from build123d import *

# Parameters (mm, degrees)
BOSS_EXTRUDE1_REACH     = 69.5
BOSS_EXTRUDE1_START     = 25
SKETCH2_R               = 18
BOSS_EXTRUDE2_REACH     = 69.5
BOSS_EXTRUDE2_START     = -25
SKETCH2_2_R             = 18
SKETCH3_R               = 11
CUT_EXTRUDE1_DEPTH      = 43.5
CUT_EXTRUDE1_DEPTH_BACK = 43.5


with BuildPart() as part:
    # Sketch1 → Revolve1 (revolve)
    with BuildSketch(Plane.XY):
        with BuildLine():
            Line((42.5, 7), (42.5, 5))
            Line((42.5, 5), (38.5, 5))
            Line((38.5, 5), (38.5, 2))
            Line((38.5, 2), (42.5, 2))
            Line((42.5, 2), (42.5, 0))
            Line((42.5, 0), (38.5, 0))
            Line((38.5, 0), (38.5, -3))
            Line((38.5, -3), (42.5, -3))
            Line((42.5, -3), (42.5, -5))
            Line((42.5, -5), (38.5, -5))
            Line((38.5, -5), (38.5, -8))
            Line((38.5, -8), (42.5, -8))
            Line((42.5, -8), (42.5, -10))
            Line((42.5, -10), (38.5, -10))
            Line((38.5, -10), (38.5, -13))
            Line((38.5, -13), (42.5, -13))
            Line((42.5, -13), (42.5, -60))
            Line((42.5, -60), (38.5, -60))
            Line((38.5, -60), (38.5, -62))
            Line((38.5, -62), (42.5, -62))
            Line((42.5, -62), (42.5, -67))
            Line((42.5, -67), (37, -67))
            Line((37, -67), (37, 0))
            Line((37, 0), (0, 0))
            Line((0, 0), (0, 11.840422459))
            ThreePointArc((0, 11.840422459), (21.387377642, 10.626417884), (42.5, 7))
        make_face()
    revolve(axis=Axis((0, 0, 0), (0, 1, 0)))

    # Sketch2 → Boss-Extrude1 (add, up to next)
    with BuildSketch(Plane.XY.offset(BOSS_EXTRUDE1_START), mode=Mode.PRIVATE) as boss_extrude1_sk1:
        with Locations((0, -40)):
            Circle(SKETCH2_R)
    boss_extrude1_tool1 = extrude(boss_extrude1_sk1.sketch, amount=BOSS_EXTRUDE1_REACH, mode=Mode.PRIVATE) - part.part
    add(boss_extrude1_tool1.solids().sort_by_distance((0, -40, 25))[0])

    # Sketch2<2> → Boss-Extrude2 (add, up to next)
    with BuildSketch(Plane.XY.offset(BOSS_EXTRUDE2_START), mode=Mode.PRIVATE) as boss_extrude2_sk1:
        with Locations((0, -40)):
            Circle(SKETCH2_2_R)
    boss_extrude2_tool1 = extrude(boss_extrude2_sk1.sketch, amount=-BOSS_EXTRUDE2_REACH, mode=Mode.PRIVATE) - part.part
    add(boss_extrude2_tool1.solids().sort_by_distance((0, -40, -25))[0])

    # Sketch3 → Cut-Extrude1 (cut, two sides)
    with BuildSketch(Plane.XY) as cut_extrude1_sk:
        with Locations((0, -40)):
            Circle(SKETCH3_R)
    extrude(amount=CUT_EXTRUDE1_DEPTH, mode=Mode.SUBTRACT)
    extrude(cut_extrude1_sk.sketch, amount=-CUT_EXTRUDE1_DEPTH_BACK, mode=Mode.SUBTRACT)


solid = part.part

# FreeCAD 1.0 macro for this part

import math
import FreeCAD as App
import Part
import Sketcher
from FreeCAD import Vector
Q = App.Units.Quantity

doc = App.newDocument("Part")
params = doc.addObject("Spreadsheet::Sheet", "Params")
for row, (alias, value) in enumerate([
    ("sketch1_radius", "189 mm"),
    ("sketch1_width", "37 mm"),
    ("sketch1_width2", "4 mm"),
    ("sketch1_height", "2 mm"),
    ("sketch1_height2", "67 mm"),
    ("revolution_angle", "360 deg"),
    ("sketch2_diameter", "36 mm"),
    ("sketch3_diameter", "36 mm"),
    ("sketch4_diameter", "22 mm"),
], start=1):
    params.set(f"A{row}", alias)
    params.set(f"B{row}", "=" + value)
    params.setAlias(f"B{row}", alias)

body = doc.addObject("PartDesign::Body", "Body")

# Sketch on XY plane
sketch1 = body.newObject("Sketcher::SketchObject", "Sketch")
sketch1.AttachmentSupport = (doc.getObject("XY_Plane"), [""])
sketch1.MapMode = "FlatFace"
sketch1.addGeometry([
    Part.LineSegment(Vector(42.5, 5, 0), Vector(42.5, 7, 0)),  # 0
    Part.ArcOfCircle(Part.Circle(Vector(0, -177.2, 0), Vector(0, 0, 1), 189), math.radians(77), math.radians(90)),  # 1
    Part.LineSegment(Vector(0, 11.8, 0), Vector(0, 0, 0)),  # 2
    Part.LineSegment(Vector(0, 0, 0), Vector(37, 0, 0)),  # 3
    Part.LineSegment(Vector(37, 0, 0), Vector(37, -67, 0)),  # 4
    Part.LineSegment(Vector(37, -67, 0), Vector(42.5, -67, 0)),  # 5
    Part.LineSegment(Vector(42.5, -67, 0), Vector(42.5, -62, 0)),  # 6
    Part.LineSegment(Vector(42.5, -62, 0), Vector(38.5, -62, 0)),  # 7
    Part.LineSegment(Vector(38.5, -62, 0), Vector(38.5, -60, 0)),  # 8
    Part.LineSegment(Vector(38.5, -60, 0), Vector(42.5, -60, 0)),  # 9
    Part.LineSegment(Vector(42.5, -60, 0), Vector(42.5, -13, 0)),  # 10
    Part.LineSegment(Vector(42.5, -13, 0), Vector(38.5, -13, 0)),  # 11
    Part.LineSegment(Vector(38.5, -13, 0), Vector(38.5, -10, 0)),  # 12
    Part.LineSegment(Vector(38.5, -10, 0), Vector(42.5, -10, 0)),  # 13
    Part.LineSegment(Vector(42.5, -10, 0), Vector(42.5, -8, 0)),  # 14
    Part.LineSegment(Vector(42.5, -8, 0), Vector(38.5, -8, 0)),  # 15
    Part.LineSegment(Vector(38.5, -8, 0), Vector(38.5, -5, 0)),  # 16
    Part.LineSegment(Vector(38.5, -5, 0), Vector(42.5, -5, 0)),  # 17
    Part.LineSegment(Vector(42.5, -5, 0), Vector(42.5, -3, 0)),  # 18
    Part.LineSegment(Vector(42.5, -3, 0), Vector(38.5, -3, 0)),  # 19
    Part.LineSegment(Vector(38.5, -3, 0), Vector(38.5, 0, 0)),  # 20
    Part.LineSegment(Vector(38.5, 0, 0), Vector(42.5, 0, 0)),  # 21
    Part.LineSegment(Vector(42.5, 0, 0), Vector(42.5, 2, 0)),  # 22
    Part.LineSegment(Vector(42.5, 2, 0), Vector(38.5, 2, 0)),  # 23
    Part.LineSegment(Vector(38.5, 2, 0), Vector(38.5, 5, 0)),  # 24
    Part.LineSegment(Vector(38.5, 5, 0), Vector(42.5, 5, 0)),  # 25
], False)
sketch1.addConstraint([
    Sketcher.Constraint("Coincident", 0, 2, 1, 1),
    Sketcher.Constraint("Coincident", 1, 2, 2, 1),
    Sketcher.Constraint("Coincident", 2, 2, 3, 1),
    Sketcher.Constraint("Coincident", 3, 2, 4, 1),
    Sketcher.Constraint("Coincident", 4, 2, 5, 1),
    Sketcher.Constraint("Coincident", 5, 2, 6, 1),
    Sketcher.Constraint("Coincident", 6, 2, 7, 1),
    Sketcher.Constraint("Coincident", 7, 2, 8, 1),
    Sketcher.Constraint("Coincident", 8, 2, 9, 1),
    Sketcher.Constraint("Coincident", 9, 2, 10, 1),
    Sketcher.Constraint("Coincident", 10, 2, 11, 1),
    Sketcher.Constraint("Coincident", 11, 2, 12, 1),
    Sketcher.Constraint("Coincident", 12, 2, 13, 1),
    Sketcher.Constraint("Coincident", 13, 2, 14, 1),
    Sketcher.Constraint("Coincident", 14, 2, 15, 1),
    Sketcher.Constraint("Coincident", 15, 2, 16, 1),
    Sketcher.Constraint("Coincident", 16, 2, 17, 1),
    Sketcher.Constraint("Coincident", 17, 2, 18, 1),
    Sketcher.Constraint("Coincident", 18, 2, 19, 1),
    Sketcher.Constraint("Coincident", 19, 2, 20, 1),
    Sketcher.Constraint("Coincident", 20, 2, 21, 1),
    Sketcher.Constraint("Coincident", 21, 2, 22, 1),
    Sketcher.Constraint("Coincident", 22, 2, 23, 1),
    Sketcher.Constraint("Coincident", 23, 2, 24, 1),
    Sketcher.Constraint("Coincident", 24, 2, 25, 1),
    Sketcher.Constraint("Coincident", 25, 2, 0, 1),
    Sketcher.Constraint("Vertical", 0),
    Sketcher.Constraint("Vertical", 2),
    Sketcher.Constraint("Horizontal", 3),
    Sketcher.Constraint("Vertical", 4),
    Sketcher.Constraint("Horizontal", 5),
    Sketcher.Constraint("Vertical", 6),
    Sketcher.Constraint("Horizontal", 7),
    Sketcher.Constraint("Vertical", 8),
    Sketcher.Constraint("Horizontal", 9),
    Sketcher.Constraint("Vertical", 10),
    Sketcher.Constraint("Horizontal", 11),
    Sketcher.Constraint("Vertical", 12),
    Sketcher.Constraint("Horizontal", 13),
    Sketcher.Constraint("Vertical", 14),
    Sketcher.Constraint("Horizontal", 15),
    Sketcher.Constraint("Vertical", 16),
    Sketcher.Constraint("Horizontal", 17),
    Sketcher.Constraint("Vertical", 18),
    Sketcher.Constraint("Horizontal", 19),
    Sketcher.Constraint("Vertical", 20),
    Sketcher.Constraint("Horizontal", 21),
    Sketcher.Constraint("Vertical", 22),
    Sketcher.Constraint("Horizontal", 23),
    Sketcher.Constraint("Vertical", 24),
    Sketcher.Constraint("Horizontal", 25),
    Sketcher.Constraint("Coincident", 2, 2, -1, 1),
    Sketcher.Constraint("Symmetric", 16, 2, 24, 2, -1),
    Sketcher.Constraint("PointOnObject", 1, 3, -2),
    Sketcher.Constraint("PointOnObject", 20, 2, -1),
    Sketcher.Constraint("Vertical", 0, 2, 5, 2),
    Sketcher.Constraint("Vertical", 6, 2, 9, 2),
    Sketcher.Constraint("Vertical", 8, 2, 11, 2),
    Sketcher.Constraint("Vertical", 10, 2, 13, 2),
    Sketcher.Constraint("Vertical", 12, 2, 15, 2),
    Sketcher.Constraint("Vertical", 14, 2, 17, 2),
    Sketcher.Constraint("Vertical", 16, 2, 19, 2),
    Sketcher.Constraint("Vertical", 18, 2, 21, 2),
    Sketcher.Constraint("Equal", 0, 8),
    Sketcher.Constraint("Equal", 8, 14),
    Sketcher.Constraint("Equal", 12, 16),
    Sketcher.Constraint("Equal", 14, 18),
    Sketcher.Constraint("Equal", 16, 20),
    Sketcher.Constraint("Equal", 18, 22),
    Sketcher.Constraint("Radius", 1, Q("189 mm")),
    Sketcher.Constraint("DistanceX", 3, 1, 3, 2, Q("37 mm")),
    Sketcher.Constraint("DistanceX", 7, 2, 7, 1, Q("4 mm")),
    Sketcher.Constraint("DistanceY", 0, 1, 0, 2, Q("2 mm")),
    Sketcher.Constraint("DistanceY", 4, 2, 4, 1, Q("67 mm")),
    Sketcher.Constraint("DistanceY", 6, 1, 6, 2, Q("5 mm")),
    Sketcher.Constraint("DistanceY", 10, 1, 10, 2, Q("47 mm")),
    Sketcher.Constraint("DistanceX", 5, 1, 5, 2, Q("5.5 mm")),
])
sketch1.setExpression("Constraints[69]", "Params.sketch1_radius")
sketch1.setExpression("Constraints[70]", "Params.sketch1_width")
sketch1.setExpression("Constraints[71]", "Params.sketch1_width2")
sketch1.setExpression("Constraints[72]", "Params.sketch1_height")
sketch1.setExpression("Constraints[73]", "Params.sketch1_height2")
revolution = body.newObject("PartDesign::Revolution", "Revolution")
revolution.Profile = sketch1
revolution.ReferenceAxis = (sketch1, ["V_Axis"])
revolution.setExpression("Angle", "Params.revolution_angle")

# Sketch on XY plane
sketch2 = body.newObject("Sketcher::SketchObject", "Sketch001")
sketch2.AttachmentSupport = (doc.getObject("XY_Plane"), [""])
sketch2.MapMode = "FlatFace"
sketch2.AttachmentOffset = App.Placement(Vector(0, 0, 25), App.Rotation())
sketch2.addGeometry(Part.Circle(Vector(0, -40, 0), Vector(0, 0, 1), 18), False)
sketch2.addConstraint([
    Sketcher.Constraint("PointOnObject", 0, 3, -2),
    Sketcher.Constraint("Diameter", 0, Q("36 mm")),
    Sketcher.Constraint("DistanceY", 0, 3, -1, 1, Q("40 mm")),
])
sketch2.setExpression("Constraints[1]", "Params.sketch2_diameter")
pad1 = body.newObject("PartDesign::Pad", "Pad")
pad1.Profile = sketch2
pad1.Type = "UpToFirst"

# Sketch on XY plane
sketch3 = body.newObject("Sketcher::SketchObject", "Sketch002")
sketch3.AttachmentSupport = (doc.getObject("XY_Plane"), [""])
sketch3.MapMode = "FlatFace"
sketch3.AttachmentOffset = App.Placement(Vector(0, 0, -25), App.Rotation())
sketch3.addGeometry(Part.Circle(Vector(0, -40, 0), Vector(0, 0, 1), 18), False)
sketch3.addConstraint([
    Sketcher.Constraint("PointOnObject", 0, 3, -2),
    Sketcher.Constraint("Diameter", 0, Q("36 mm")),
    Sketcher.Constraint("DistanceY", 0, 3, -1, 1, Q("40 mm")),
])
sketch3.setExpression("Constraints[1]", "Params.sketch3_diameter")
pad2 = body.newObject("PartDesign::Pad", "Pad001")
pad2.Profile = sketch3
pad2.Type = "UpToFirst"
pad2.Reversed = True

# Sketch on XY plane
sketch4 = body.newObject("Sketcher::SketchObject", "Sketch003")
sketch4.AttachmentSupport = (doc.getObject("XY_Plane"), [""])
sketch4.MapMode = "FlatFace"
sketch4.addGeometry(Part.Circle(Vector(0, -40, 0), Vector(0, 0, 1), 11), False)
sketch4.addConstraint([
    Sketcher.Constraint("PointOnObject", 0, 3, -2),
    Sketcher.Constraint("Diameter", 0, Q("22 mm")),
    Sketcher.Constraint("DistanceY", 0, 3, -1, 1, Q("40 mm")),
])
sketch4.setExpression("Constraints[1]", "Params.sketch4_diameter")
pocket1 = body.newObject("PartDesign::Pocket", "Pocket")
pocket1.Profile = sketch4
pocket1.Type = "ThroughAll"
pocket1.Midplane = True

doc.recompute()
